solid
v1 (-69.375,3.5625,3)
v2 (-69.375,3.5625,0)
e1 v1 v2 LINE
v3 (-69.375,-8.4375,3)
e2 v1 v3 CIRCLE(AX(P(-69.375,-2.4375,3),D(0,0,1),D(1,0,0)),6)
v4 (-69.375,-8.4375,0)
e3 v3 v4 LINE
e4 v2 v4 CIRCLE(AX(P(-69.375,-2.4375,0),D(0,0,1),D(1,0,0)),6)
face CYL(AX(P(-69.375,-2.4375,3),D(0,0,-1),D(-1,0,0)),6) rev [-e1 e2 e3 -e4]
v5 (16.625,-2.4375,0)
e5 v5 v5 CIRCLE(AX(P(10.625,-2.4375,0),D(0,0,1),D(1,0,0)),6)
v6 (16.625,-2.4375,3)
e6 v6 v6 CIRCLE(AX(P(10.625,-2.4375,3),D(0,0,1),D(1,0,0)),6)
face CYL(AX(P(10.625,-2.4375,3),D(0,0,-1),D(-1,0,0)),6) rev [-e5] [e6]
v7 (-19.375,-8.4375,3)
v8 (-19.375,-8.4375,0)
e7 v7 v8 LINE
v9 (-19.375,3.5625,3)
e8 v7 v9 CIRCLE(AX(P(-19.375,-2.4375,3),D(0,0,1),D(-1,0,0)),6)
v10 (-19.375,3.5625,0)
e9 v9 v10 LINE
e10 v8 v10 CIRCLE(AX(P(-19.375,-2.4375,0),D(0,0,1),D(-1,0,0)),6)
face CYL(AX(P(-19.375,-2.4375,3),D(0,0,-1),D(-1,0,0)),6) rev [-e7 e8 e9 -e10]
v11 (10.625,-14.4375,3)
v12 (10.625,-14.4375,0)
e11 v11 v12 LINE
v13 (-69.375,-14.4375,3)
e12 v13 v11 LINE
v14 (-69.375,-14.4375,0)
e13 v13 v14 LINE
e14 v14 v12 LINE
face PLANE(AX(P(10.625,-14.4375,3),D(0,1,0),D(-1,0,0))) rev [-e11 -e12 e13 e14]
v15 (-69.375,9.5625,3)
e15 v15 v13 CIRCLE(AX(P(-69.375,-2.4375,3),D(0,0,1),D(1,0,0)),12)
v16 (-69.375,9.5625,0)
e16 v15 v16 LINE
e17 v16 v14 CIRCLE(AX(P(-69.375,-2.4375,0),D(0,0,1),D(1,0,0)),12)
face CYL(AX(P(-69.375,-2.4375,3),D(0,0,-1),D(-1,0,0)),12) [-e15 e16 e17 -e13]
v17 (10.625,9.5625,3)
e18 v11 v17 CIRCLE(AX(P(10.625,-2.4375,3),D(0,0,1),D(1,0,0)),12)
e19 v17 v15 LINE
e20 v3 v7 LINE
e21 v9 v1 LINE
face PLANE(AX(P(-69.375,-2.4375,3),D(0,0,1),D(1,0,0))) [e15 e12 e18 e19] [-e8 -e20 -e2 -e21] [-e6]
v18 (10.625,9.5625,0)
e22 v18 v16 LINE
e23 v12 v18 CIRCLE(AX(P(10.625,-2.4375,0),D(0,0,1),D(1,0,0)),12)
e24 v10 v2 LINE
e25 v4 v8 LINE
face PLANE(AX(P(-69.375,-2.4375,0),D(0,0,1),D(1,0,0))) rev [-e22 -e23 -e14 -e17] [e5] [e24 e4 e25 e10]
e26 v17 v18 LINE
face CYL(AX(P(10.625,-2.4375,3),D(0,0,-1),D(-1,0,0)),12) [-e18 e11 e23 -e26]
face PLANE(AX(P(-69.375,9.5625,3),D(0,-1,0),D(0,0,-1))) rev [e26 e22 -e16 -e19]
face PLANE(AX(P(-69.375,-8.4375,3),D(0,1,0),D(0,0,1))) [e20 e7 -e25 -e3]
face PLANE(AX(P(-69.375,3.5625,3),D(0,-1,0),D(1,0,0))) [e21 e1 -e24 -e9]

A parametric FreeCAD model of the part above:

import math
import FreeCAD as App
import Part
import Sketcher

V = App.Vector
Q = App.Units.Quantity

doc = App.newDocument("Part")
params = doc.addObject("Spreadsheet::Sheet", "Params")
for row, (alias, value) in enumerate([
    ("sketch1_diameter", "12 mm"),
    ("sketch1_radius", "12 mm"),
    ("sketch1_width", "80 mm"),
    ("sketch1_width2", "50 mm"),
    ("pad1_length", "3 mm"),
], start=1):
    params.set(f"A{row}", alias)
    params.set(f"B{row}", "=" + value)
    params.setAlias(f"B{row}", alias)

body = doc.addObject("PartDesign::Body", "Body")

sketch1 = body.newObject("Sketcher::SketchObject", "Sketch")
sketch1.AttachmentSupport = (doc.getObject("XY_Plane"), [""])
sketch1.MapMode = "FlatFace"
sketch1.addGeometry([
    Part.LineSegment(V(11, 10, 0), V(-69, 10, 0)),
    Part.ArcOfCircle(Part.Circle(V(-69, -2, 0), V(0, 0, 1), 12), math.radians(90), math.radians(270)),
    Part.LineSegment(V(-69, -14, 0), V(11, -14, 0)),
    Part.ArcOfCircle(Part.Circle(V(11, -2, 0), V(0, 0, 1), 12), math.radians(-90), math.radians(90)),
    Part.Circle(V(11, -2, 0), V(0, 0, 1), 6),
    Part.LineSegment(V(-69, 4, 0), V(-19, 4, 0)),
    Part.ArcOfCircle(Part.Circle(V(-19, -2, 0), V(0, 0, 1), 6), math.radians(-90), math.radians(90)),
    Part.LineSegment(V(-19, -8, 0), V(-69, -8, 0)),
    Part.ArcOfCircle(Part.Circle(V(-69, -2, 0), V(0, 0, 1), 6), math.radians(90), math.radians(270)),
], False)
sketch1.addConstraint([
    Sketcher.Constraint("Tangent", 0, 2, 1, 1),
    Sketcher.Constraint("Tangent", 1, 2, 2, 1),
    Sketcher.Constraint("Tangent", 2, 2, 3, 1),
    Sketcher.Constraint("Tangent", 3, 2, 0, 1),
    Sketcher.Constraint("Tangent", 5, 2, 6, 2),
    Sketcher.Constraint("Tangent", 6, 1, 7, 1),
    Sketcher.Constraint("Tangent", 7, 2, 8, 2),
    Sketcher.Constraint("Tangent", 8, 1, 5, 1),
    Sketcher.Constraint("Horizontal", 0),
    Sketcher.Constraint("Horizontal", 2),
    Sketcher.Constraint("Horizontal", 5),
    Sketcher.Constraint("Horizontal", 7),
    Sketcher.Constraint("Coincident", 4, 3, 3, 3),
    Sketcher.Constraint("Coincident", 8, 3, 1, 3),
    Sketcher.Constraint("Equal", 4, 6),
    Sketcher.Constraint("Diameter", 4, Q("12 mm")),
    Sketcher.Constraint("Radius", 1, Q("12 mm")),
    Sketcher.Constraint("DistanceX", 0, 2, 0, 1, Q("80 mm")),
    Sketcher.Constraint("DistanceX", 5, 1, 5, 2, Q("50 mm")),
    Sketcher.Constraint("DistanceX", 1, 3, -1, 1, Q("69.375 mm")),
    Sketcher.Constraint("DistanceY", 1, 3, -1, 1, Q("2.4375 mm")),
])
sketch1.setExpression("Constraints[15]", "Params.sketch1_diameter")
sketch1.setExpression("Constraints[16]", "Params.sketch1_radius")
sketch1.setExpression("Constraints[17]", "Params.sketch1_width")
sketch1.setExpression("Constraints[18]", "Params.sketch1_width2")
pad1 = body.newObject("PartDesign::Pad", "Pad")
pad1.Profile = sketch1
pad1.setExpression("Length", "Params.pad1_length")

doc.recompute()
